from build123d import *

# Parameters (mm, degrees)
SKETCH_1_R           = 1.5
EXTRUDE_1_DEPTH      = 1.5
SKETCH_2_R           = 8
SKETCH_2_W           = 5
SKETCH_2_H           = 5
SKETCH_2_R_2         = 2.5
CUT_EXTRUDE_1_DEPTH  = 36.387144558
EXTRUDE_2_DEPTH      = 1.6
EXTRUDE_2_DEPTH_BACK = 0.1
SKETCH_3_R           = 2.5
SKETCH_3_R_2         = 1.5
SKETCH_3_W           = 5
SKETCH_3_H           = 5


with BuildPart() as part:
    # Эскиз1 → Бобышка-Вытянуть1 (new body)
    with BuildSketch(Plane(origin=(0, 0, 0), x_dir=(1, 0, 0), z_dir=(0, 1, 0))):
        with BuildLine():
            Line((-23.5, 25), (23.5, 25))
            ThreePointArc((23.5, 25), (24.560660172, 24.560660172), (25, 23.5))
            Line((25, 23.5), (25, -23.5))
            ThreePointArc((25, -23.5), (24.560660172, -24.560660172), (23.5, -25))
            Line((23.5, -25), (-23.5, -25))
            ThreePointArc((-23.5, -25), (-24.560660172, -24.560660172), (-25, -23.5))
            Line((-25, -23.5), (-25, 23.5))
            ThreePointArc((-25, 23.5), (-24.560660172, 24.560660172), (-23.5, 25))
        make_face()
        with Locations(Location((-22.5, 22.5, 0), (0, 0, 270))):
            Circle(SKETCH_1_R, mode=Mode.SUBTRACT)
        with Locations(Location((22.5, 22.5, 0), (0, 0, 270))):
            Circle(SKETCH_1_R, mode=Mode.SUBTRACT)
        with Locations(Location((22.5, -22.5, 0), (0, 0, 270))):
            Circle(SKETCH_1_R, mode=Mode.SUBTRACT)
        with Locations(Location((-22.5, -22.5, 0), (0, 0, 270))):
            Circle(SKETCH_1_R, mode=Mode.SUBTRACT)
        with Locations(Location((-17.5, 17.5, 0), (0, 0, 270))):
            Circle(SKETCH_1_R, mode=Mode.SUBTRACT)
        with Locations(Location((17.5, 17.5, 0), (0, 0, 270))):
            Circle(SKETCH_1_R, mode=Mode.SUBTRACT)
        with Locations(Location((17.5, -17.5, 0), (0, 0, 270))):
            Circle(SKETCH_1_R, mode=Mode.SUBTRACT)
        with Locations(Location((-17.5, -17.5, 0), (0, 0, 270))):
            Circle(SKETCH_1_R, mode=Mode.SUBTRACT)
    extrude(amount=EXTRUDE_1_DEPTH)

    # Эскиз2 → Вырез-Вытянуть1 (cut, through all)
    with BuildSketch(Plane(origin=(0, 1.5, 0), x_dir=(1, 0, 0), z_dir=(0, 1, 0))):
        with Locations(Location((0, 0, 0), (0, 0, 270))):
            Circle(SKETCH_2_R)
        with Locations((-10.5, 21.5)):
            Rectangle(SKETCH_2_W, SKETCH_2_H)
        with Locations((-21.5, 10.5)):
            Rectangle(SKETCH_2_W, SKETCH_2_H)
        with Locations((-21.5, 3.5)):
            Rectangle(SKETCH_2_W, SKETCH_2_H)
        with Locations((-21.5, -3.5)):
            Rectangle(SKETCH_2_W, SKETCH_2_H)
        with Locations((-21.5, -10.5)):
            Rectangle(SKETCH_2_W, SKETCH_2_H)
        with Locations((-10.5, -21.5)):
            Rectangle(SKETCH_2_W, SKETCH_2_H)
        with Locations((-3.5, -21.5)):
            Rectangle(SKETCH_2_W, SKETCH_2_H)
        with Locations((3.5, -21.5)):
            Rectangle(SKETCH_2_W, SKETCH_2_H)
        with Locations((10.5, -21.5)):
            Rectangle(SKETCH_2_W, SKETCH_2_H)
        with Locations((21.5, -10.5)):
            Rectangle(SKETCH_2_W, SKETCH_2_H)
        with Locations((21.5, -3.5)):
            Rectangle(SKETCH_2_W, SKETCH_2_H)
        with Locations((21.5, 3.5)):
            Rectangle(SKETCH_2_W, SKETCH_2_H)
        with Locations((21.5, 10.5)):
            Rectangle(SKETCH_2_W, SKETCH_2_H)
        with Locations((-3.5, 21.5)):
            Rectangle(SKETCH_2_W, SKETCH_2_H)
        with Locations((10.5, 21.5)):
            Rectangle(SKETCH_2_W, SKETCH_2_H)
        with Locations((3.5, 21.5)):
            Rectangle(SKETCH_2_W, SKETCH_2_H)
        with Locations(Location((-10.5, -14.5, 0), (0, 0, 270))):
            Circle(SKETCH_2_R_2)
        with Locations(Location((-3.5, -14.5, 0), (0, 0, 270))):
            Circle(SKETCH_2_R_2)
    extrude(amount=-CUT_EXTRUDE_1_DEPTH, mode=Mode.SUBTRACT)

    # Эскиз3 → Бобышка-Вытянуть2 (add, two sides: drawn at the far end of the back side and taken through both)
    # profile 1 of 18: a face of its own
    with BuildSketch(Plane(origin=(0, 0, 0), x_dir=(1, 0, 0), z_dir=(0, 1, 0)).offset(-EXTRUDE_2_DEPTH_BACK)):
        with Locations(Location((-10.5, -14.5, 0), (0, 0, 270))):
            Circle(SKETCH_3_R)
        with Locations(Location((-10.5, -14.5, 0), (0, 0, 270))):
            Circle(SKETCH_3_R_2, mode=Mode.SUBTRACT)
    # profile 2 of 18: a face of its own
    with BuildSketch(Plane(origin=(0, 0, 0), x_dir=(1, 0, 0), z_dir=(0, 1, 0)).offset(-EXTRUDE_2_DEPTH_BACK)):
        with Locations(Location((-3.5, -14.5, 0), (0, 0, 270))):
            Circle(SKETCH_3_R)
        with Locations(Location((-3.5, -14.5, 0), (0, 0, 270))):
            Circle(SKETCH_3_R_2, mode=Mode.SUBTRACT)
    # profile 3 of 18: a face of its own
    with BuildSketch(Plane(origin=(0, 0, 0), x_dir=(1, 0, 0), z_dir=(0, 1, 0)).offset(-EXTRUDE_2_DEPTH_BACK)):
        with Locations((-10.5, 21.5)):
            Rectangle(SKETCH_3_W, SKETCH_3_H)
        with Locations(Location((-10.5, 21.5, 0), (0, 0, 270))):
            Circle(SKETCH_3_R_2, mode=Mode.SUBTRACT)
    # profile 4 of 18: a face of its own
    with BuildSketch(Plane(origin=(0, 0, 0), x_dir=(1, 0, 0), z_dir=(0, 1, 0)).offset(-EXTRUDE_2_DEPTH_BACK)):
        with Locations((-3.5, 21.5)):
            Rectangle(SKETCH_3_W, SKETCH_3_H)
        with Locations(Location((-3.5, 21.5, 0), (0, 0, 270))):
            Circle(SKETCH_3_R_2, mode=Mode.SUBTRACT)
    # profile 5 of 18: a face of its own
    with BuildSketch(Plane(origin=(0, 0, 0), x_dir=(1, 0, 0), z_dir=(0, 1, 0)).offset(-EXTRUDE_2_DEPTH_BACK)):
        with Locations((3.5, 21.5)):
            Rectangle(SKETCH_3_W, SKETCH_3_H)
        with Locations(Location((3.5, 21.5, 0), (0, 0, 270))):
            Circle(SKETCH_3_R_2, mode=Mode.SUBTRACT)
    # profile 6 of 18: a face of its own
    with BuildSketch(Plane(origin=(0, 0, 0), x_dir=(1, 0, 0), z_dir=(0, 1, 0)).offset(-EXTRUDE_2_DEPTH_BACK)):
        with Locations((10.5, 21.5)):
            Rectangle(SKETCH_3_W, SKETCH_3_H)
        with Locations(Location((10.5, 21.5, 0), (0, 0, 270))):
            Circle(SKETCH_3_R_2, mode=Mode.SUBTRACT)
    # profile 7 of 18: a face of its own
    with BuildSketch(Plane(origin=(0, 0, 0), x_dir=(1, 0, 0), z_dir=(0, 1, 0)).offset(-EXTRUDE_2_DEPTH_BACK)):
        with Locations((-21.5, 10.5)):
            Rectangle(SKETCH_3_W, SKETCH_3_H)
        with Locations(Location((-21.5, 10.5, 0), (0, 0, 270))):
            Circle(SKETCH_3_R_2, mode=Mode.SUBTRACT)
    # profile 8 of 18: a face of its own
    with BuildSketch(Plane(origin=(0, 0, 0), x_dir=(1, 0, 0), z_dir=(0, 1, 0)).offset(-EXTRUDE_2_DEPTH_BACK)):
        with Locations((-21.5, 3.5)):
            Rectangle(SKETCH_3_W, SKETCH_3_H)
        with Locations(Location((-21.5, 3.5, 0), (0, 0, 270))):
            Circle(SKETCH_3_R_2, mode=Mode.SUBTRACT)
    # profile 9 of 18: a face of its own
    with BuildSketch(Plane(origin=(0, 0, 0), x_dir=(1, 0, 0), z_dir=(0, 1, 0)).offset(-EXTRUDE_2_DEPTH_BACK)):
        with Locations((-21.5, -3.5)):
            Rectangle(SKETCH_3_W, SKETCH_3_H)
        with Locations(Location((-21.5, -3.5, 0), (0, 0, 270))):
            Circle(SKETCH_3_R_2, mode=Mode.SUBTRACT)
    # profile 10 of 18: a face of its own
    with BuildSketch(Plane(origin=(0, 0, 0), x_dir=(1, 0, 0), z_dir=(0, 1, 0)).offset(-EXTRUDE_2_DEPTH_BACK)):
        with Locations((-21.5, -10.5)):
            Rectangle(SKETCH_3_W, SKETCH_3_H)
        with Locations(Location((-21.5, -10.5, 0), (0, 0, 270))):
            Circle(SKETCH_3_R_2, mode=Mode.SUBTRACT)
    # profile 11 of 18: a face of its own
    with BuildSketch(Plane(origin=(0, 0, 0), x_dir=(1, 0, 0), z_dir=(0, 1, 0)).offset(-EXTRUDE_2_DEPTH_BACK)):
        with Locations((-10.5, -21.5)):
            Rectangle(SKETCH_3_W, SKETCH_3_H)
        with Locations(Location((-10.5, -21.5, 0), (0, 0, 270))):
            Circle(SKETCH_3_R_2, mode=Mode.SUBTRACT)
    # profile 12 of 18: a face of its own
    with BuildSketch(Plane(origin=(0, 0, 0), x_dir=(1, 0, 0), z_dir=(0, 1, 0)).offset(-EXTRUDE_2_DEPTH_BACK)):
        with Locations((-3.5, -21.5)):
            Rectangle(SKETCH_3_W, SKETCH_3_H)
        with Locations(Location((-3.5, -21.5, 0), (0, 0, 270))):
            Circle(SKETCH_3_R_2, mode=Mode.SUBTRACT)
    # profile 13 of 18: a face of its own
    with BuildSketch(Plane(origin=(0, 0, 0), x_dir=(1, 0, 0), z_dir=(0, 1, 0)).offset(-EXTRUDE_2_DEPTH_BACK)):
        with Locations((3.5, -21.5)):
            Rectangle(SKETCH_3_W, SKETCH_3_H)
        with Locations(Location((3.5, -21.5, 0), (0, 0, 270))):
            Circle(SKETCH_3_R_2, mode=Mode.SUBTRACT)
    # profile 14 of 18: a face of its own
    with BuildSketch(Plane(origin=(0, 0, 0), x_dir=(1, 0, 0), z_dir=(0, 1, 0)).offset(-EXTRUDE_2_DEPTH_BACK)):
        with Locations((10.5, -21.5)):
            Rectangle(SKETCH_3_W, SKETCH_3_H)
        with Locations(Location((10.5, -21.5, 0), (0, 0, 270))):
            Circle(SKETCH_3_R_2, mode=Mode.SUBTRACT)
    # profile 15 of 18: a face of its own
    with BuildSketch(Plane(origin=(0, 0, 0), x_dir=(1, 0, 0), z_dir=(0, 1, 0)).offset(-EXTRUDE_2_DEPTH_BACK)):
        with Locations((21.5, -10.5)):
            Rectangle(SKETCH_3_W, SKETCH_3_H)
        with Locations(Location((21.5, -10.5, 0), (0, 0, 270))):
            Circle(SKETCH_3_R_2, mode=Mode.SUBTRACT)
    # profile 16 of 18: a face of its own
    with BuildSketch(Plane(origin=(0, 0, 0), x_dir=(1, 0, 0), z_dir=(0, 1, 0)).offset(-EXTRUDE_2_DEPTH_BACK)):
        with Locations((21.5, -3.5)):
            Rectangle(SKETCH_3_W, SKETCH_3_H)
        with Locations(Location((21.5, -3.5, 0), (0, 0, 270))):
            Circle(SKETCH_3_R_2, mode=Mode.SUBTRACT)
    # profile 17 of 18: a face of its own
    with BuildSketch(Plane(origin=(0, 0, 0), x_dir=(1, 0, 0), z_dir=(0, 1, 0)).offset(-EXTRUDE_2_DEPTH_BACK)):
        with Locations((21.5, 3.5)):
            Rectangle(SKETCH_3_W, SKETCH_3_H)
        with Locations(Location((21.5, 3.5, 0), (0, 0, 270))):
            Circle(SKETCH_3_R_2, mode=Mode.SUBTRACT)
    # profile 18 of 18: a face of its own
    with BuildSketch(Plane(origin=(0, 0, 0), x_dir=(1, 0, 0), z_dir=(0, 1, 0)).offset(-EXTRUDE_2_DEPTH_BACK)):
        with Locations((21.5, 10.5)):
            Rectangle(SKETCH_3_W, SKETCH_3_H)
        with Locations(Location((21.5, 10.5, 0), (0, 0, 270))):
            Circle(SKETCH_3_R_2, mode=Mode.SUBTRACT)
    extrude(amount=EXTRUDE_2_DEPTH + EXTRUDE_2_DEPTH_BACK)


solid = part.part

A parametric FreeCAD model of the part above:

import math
import FreeCAD as App
import Part
import Sketcher
from FreeCAD import Vector


def add_polygon(sketch, points):
    """Adds a closed chain of lines whose ends are joined by coincident constraints."""
    first, n = sketch.GeometryCount, len(points)
    for a, b in zip(points, points[1:] + points[:1]):
        sketch.addGeometry(Part.LineSegment(App.Vector(*a, 0), App.Vector(*b, 0)), False)
    for i in range(n):
        sketch.addConstraint(Sketcher.Constraint("Coincident", first + i, 2, first + (i + 1) % n, 1))

doc = App.newDocument("Part")
body = doc.addObject("PartDesign::Body", "Body")

# Sketch on XZ plane
sketch1 = doc.addObject("Sketcher::SketchObject", "Sketch")
body.addObject(sketch1)
sketch1.AttachmentSupport = (doc.XZ_Plane, [""])
sketch1.MapMode = "FlatFace"
sketch1.addGeometry([
    Part.LineSegment(Vector(23.5, -25, 0), Vector(-23.5, -25, 0)),  # 0
    Part.ArcOfCircle(Part.Circle(Vector(-23.5, -23.5, 0), Vector(0, 0, 1), 1.5), math.radians(180), math.radians(270)),  # 1
    Part.LineSegment(Vector(-25, -23.5, 0), Vector(-25, 23.5, 0)),  # 2
    Part.ArcOfCircle(Part.Circle(Vector(-23.5, 23.5, 0), Vector(0, 0, 1), 1.5), math.radians(90), math.radians(180)),  # 3
    Part.LineSegment(Vector(-23.5, 25, 0), Vector(23.5, 25, 0)),  # 4
    Part.ArcOfCircle(Part.Circle(Vector(23.5, 23.5, 0), Vector(0, 0, 1), 1.5), math.radians(0), math.radians(90)),  # 5
    Part.LineSegment(Vector(25, 23.5, 0), Vector(25, -23.5, 0)),  # 6
    Part.ArcOfCircle(Part.Circle(Vector(23.5, -23.5, 0), Vector(0, 0, 1), 1.5), math.radians(-90), math.radians(0)),  # 7
    Part.Circle(Vector(22.5, 22.5, 0), Vector(0, 0, 1), 1.5),  # 8
    Part.Circle(Vector(17.5, 17.5, 0), Vector(0, 0, 1), 1.5),  # 9
    Part.Circle(Vector(-22.5, 22.5, 0), Vector(0, 0, 1), 1.5),  # 10
    Part.Circle(Vector(-17.5, 17.5, 0), Vector(0, 0, 1), 1.5),  # 11
    Part.Circle(Vector(17.5, -17.5, 0), Vector(0, 0, 1), 1.5),  # 12
    Part.Circle(Vector(22.5, -22.5, 0), Vector(0, 0, 1), 1.5),  # 13
    Part.Circle(Vector(-17.5, -17.5, 0), Vector(0, 0, 1), 1.5),  # 14
    Part.Circle(Vector(-22.5, -22.5, 0), Vector(0, 0, 1), 1.5),  # 15
], False)
sketch1.addConstraint([
    Sketcher.Constraint("Tangent", 0, 2, 1, 2),
    Sketcher.Constraint("Tangent", 1, 1, 2, 1),
    Sketcher.Constraint("Tangent", 2, 2, 3, 2),
    Sketcher.Constraint("Tangent", 3, 1, 4, 1),
    Sketcher.Constraint("Tangent", 4, 2, 5, 2),
    Sketcher.Constraint("Tangent", 5, 1, 6, 1),
    Sketcher.Constraint("Tangent", 6, 2, 7, 2),
    Sketcher.Constraint("Tangent", 7, 1, 0, 1),
    Sketcher.Constraint("Horizontal", 0),
    Sketcher.Constraint("Vertical", 2),
    Sketcher.Constraint("Horizontal", 4),
    Sketcher.Constraint("Vertical", 6),
    Sketcher.Constraint("Equal", 1, 3),
    Sketcher.Constraint("Equal", 3, 5),
    Sketcher.Constraint("Equal", 5, 7),
    Sketcher.Constraint("Equal", 7, 8),
    Sketcher.Constraint("Equal", 8, 9),
    Sketcher.Constraint("Equal", 9, 10),
    Sketcher.Constraint("Equal", 10, 11),
    Sketcher.Constraint("Equal", 11, 12),
    Sketcher.Constraint("Equal", 12, 13),
    Sketcher.Constraint("Equal", 13, 14),
    Sketcher.Constraint("Equal", 14, 15),
    Sketcher.Constraint("Symmetric", 1, 3, 5, 3, -1, 1),
    Sketcher.Constraint("Symmetric", 11, 3, 12, 3, -1, 1),
    Sketcher.Constraint("Symmetric", 10, 3, 13, 3, -1, 1),
    Sketcher.Constraint("Symmetric", 9, 3, 14, 3, -1, 1),
    Sketcher.Constraint("Symmetric", 8, 3, 15, 3, -1, 1),
    Sketcher.Constraint("Symmetric", 8, 3, 10, 3, -2),
    Sketcher.Constraint("Symmetric", 9, 3, 11, 3, -2),
    Sketcher.Constraint("Equal", 4, 2),
    Sketcher.Constraint("Diameter", 8, 3.0),
    Sketcher.Constraint("DistanceX", 0, 2, 0, 1, 47.0),
    Sketcher.Constraint("DistanceX", 8, 3, 5, 3, 1.0),
    Sketcher.Constraint("DistanceY", 8, 3, 5, 3, 1.0),
    Sketcher.Constraint("DistanceX", 9, 3, 8, 3, 5.0),
    Sketcher.Constraint("DistanceY", 9, 3, 8, 3, 5.0),
])
pad1 = doc.addObject("PartDesign::Pad", "Pad")
body.addObject(pad1)
pad1.Profile = sketch1
pad1.Length = 1.5
pad1.Reversed = True

# Sketch on XZ plane
sketch2 = doc.addObject("Sketcher::SketchObject", "Sketch001")
body.addObject(sketch2)
sketch2.AttachmentSupport = (doc.XZ_Plane, [""])
sketch2.MapMode = "FlatFace"
sketch2.AttachmentOffset = App.Placement(Vector(0, 0, -1.5), App.Rotation())
sketch2.addGeometry(Part.Circle(Vector(0, 0, 0), Vector(0, 0, 1), 8), False)  # 0
add_polygon(sketch2, [(-13, -24), (-13, -19), (-8, -19), (-8, -24)])  # lines 1-4
add_polygon(sketch2, [(-24, -13), (-24, -8), (-19, -8), (-19, -13)])  # lines 5-8
add_polygon(sketch2, [(-24, -6), (-24, -1), (-19, -1), (-19, -6)])  # lines 9-12
add_polygon(sketch2, [(-24, 1), (-24, 6), (-19, 6), (-19, 1)])  # lines 13-16
add_polygon(sketch2, [(-24, 8), (-24, 13), (-19, 13), (-19, 8)])  # lines 17-20
add_polygon(sketch2, [(-13, 19), (-13, 24), (-8, 24), (-8, 19)])  # lines 21-24
add_polygon(sketch2, [(-6, 19), (-6, 24), (-1, 24), (-1, 19)])  # lines 25-28
add_polygon(sketch2, [(1, 19), (1, 24), (6, 24), (6, 19)])  # lines 29-32
add_polygon(sketch2, [(8, 19), (8, 24), (13, 24), (13, 19)])  # lines 33-36
add_polygon(sketch2, [(19, 8), (19, 13), (24, 13), (24, 8)])  # lines 37-40
add_polygon(sketch2, [(19, 1), (19, 6), (24, 6), (24, 1)])  # lines 41-44
add_polygon(sketch2, [(19, -6), (19, -1), (24, -1), (24, -6)])  # lines 45-48
add_polygon(sketch2, [(19, -13), (19, -8), (24, -8), (24, -13)])  # lines 49-52
add_polygon(sketch2, [(-6, -24), (-6, -19), (-1, -19), (-1, -24)])  # lines 53-56
add_polygon(sketch2, [(8, -24), (8, -19), (13, -19), (13, -24)])  # lines 57-60
add_polygon(sketch2, [(1, -24), (1, -19), (6, -19), (6, -24)])  # lines 61-64
sketch2.addGeometry(Part.Circle(Vector(-10.5, 14.5, 0), Vector(0, 0, 1), 2.5), False)  # 65
sketch2.addGeometry(Part.Circle(Vector(-3.5, 14.5, 0), Vector(0, 0, 1), 2.5), False)  # 66
sketch2.addConstraint([
    Sketcher.Constraint("Vertical", 1),
    Sketcher.Constraint("Horizontal", 2),
    Sketcher.Constraint("Vertical", 3),
    Sketcher.Constraint("Horizontal", 4),
    Sketcher.Constraint("Vertical", 5),
    Sketcher.Constraint("Horizontal", 6),
    Sketcher.Constraint("Vertical", 7),
    Sketcher.Constraint("Horizontal", 8),
    Sketcher.Constraint("Vertical", 9),
    Sketcher.Constraint("Horizontal", 10),
    Sketcher.Constraint("Vertical", 11),
    Sketcher.Constraint("Horizontal", 12),
    Sketcher.Constraint("Vertical", 13),
    Sketcher.Constraint("Horizontal", 14),
    Sketcher.Constraint("Vertical", 15),
    Sketcher.Constraint("Horizontal", 16),
    Sketcher.Constraint("Vertical", 17),
    Sketcher.Constraint("Horizontal", 18),
    Sketcher.Constraint("Vertical", 19),
    Sketcher.Constraint("Horizontal", 20),
    Sketcher.Constraint("Vertical", 21),
    Sketcher.Constraint("Horizontal", 22),
    Sketcher.Constraint("Vertical", 23),
    Sketcher.Constraint("Horizontal", 24),
    Sketcher.Constraint("Vertical", 25),
    Sketcher.Constraint("Horizontal", 26),
    Sketcher.Constraint("Vertical", 27),
    Sketcher.Constraint("Horizontal", 28),
    Sketcher.Constraint("Vertical", 29),
    Sketcher.Constraint("Horizontal", 30),
    Sketcher.Constraint("Vertical", 31),
    Sketcher.Constraint("Horizontal", 32),
    Sketcher.Constraint("Vertical", 33),
    Sketcher.Constraint("Horizontal", 34),
    Sketcher.Constraint("Vertical", 35),
    Sketcher.Constraint("Horizontal", 36),
    Sketcher.Constraint("Vertical", 37),
    Sketcher.Constraint("Horizontal", 38),
    Sketcher.Constraint("Vertical", 39),
    Sketcher.Constraint("Horizontal", 40),
    Sketcher.Constraint("Vertical", 41),
    Sketcher.Constraint("Horizontal", 42),
    Sketcher.Constraint("Vertical", 43),
    Sketcher.Constraint("Horizontal", 44),
    Sketcher.Constraint("Vertical", 45),
    Sketcher.Constraint("Horizontal", 46),
    Sketcher.Constraint("Vertical", 47),
    Sketcher.Constraint("Horizontal", 48),
    Sketcher.Constraint("Vertical", 49),
    Sketcher.Constraint("Horizontal", 50),
    Sketcher.Constraint("Vertical", 51),
    Sketcher.Constraint("Horizontal", 52),
    Sketcher.Constraint("Vertical", 53),
    Sketcher.Constraint("Horizontal", 54),
    Sketcher.Constraint("Vertical", 55),
    Sketcher.Constraint("Horizontal", 56),
    Sketcher.Constraint("Vertical", 57),
    Sketcher.Constraint("Horizontal", 58),
    Sketcher.Constraint("Vertical", 59),
    Sketcher.Constraint("Horizontal", 60),
    Sketcher.Constraint("Vertical", 61),
    Sketcher.Constraint("Horizontal", 62),
    Sketcher.Constraint("Vertical", 63),
    Sketcher.Constraint("Horizontal", 64),
    Sketcher.Constraint("Coincident", 0, 3, -1, 1),
    Sketcher.Constraint("Equal", 65, 66),
    Sketcher.Constraint("Symmetric", 3, 2, 33, 2, -1, 1),
    Sketcher.Constraint("Symmetric", 1, 2, 35, 2, -1, 1),
    Sketcher.Constraint("Symmetric", 7, 2, 37, 2, -1, 1),
    Sketcher.Constraint("Symmetric", 5, 2, 39, 2, -1, 1),
    Sketcher.Constraint("Symmetric", 11, 2, 41, 2, -1, 1),
    Sketcher.Constraint("Symmetric", 9, 2, 43, 2, -1, 1),
    Sketcher.Constraint("Symmetric", 15, 2, 45, 2, -1, 1),
    Sketcher.Constraint("Symmetric", 13, 2, 47, 2, -1, 1),
    Sketcher.Constraint("Symmetric", 19, 2, 49, 2, -1, 1),
    Sketcher.Constraint("Symmetric", 17, 2, 51, 2, -1, 1),
    Sketcher.Constraint("Symmetric", 31, 2, 53, 2, -1, 1),
    Sketcher.Constraint("Symmetric", 29, 2, 55, 2, -1, 1),
    Sketcher.Constraint("Symmetric", 23, 2, 57, 2, -1, 1),
    Sketcher.Constraint("Symmetric", 21, 2, 59, 2, -1, 1),
    Sketcher.Constraint("Symmetric", 27, 2, 61, 2, -1, 1),
    Sketcher.Constraint("Symmetric", 25, 2, 63, 2, -1, 1),
    Sketcher.Constraint("Symmetric", 26, 2, 29, 2, -2),
    Sketcher.Constraint("Symmetric", 28, 2, 31, 2, -2),
    Sketcher.Constraint("Symmetric", 22, 2, 33, 2, -2),
    Sketcher.Constraint("Symmetric", 24, 2, 35, 2, -2),
    Sketcher.Constraint("Symmetric", 18, 2, 37, 2, -2),
    Sketcher.Constraint("Symmetric", 20, 2, 39, 2, -2),
    Sketcher.Constraint("Symmetric", 14, 2, 41, 2, -2),
    Sketcher.Constraint("Symmetric", 16, 2, 43, 2, -2),
    Sketcher.Constraint("Horizontal", 65, 3, 66, 3),
    Sketcher.Constraint("Horizontal", 22, 2, 25, 2),
    Sketcher.Constraint("Horizontal", 24, 2, 27, 2),
    Sketcher.Constraint("Vertical", 8, 2, 9, 2),
    Sketcher.Constraint("Vertical", 7, 2, 10, 2),
    Sketcher.Constraint("Equal", 4, 6),
    Sketcher.Constraint("Equal", 24, 26),
    Sketcher.Constraint("Equal", 64, 1),
    Sketcher.Constraint("Equal", 3, 5),
    Sketcher.Constraint("Equal", 7, 9),
    Sketcher.Constraint("Diameter", 0, 16.0),
    Sketcher.Constraint("Diameter", 65, 5.0),
    Sketcher.Constraint("DistanceX", 2, 1, 2, 2, 5.0),
    Sketcher.Constraint("DistanceX", 1, 2, -1, 1, 13.0),
    Sketcher.Constraint("DistanceY", 1, 2, -1, 1, 19.0),
    Sketcher.Constraint("DistanceX", 5, 2, -1, 1, 24.0),
    Sketcher.Constraint("DistanceY", 5, 2, -1, 1, 8.0),
    Sketcher.Constraint("DistanceY", 9, 2, -1, 1, 1.0),
    Sketcher.Constraint("DistanceX", 25, 2, -1, 1, 6.0),
    Sketcher.Constraint("DistanceX", 65, 3, -1, 1, 10.5),
    Sketcher.Constraint("DistanceY", -1, 1, 65, 3, 14.5),
    Sketcher.Constraint("DistanceX", 66, 3, -1, 1, 3.5),
])
pocket1 = doc.addObject("PartDesign::Pocket", "Pocket")
body.addObject(pocket1)
pocket1.Profile = sketch2
pocket1.Type = "ThroughAll"
pocket1.Reversed = True

# Sketch on XZ plane
sketch3 = doc.addObject("Sketcher::SketchObject", "Sketch002")
body.addObject(sketch3)
sketch3.AttachmentSupport = (doc.XZ_Plane, [""])
sketch3.MapMode = "FlatFace"
sketch3.addGeometry(Part.Circle(Vector(-10.5, 14.5, 0), Vector(0, 0, 1), 2.5), False)  # 0
sketch3.addGeometry(Part.Circle(Vector(-10.5, 14.5, 0), Vector(0, 0, 1), 1.5), False)  # 1
sketch3.addGeometry(Part.Circle(Vector(-3.5, 14.5, 0), Vector(0, 0, 1), 2.5), False)  # 2
sketch3.addGeometry(Part.Circle(Vector(-3.5, 14.5, 0), Vector(0, 0, 1), 1.5), False)  # 3
add_polygon(sketch3, [(-13, -24), (-13, -19), (-8, -19), (-8, -24)])  # lines 4-7
sketch3.addGeometry(Part.Circle(Vector(-10.5, -21.5, 0), Vector(0, 0, 1), 1.5), False)  # 8
add_polygon(sketch3, [(-6, -24), (-6, -19), (-1, -19), (-1, -24)])  # lines 9-12
sketch3.addGeometry(Part.Circle(Vector(-3.5, -21.5, 0), Vector(0, 0, 1), 1.5), False)  # 13
add_polygon(sketch3, [(1, -24), (1, -19), (6, -19), (6, -24)])  # lines 14-17
sketch3.addGeometry(Part.Circle(Vector(3.5, -21.5, 0), Vector(0, 0, 1), 1.5), False)  # 18
add_polygon(sketch3, [(8, -24), (8, -19), (13, -19), (13, -24)])  # lines 19-22
sketch3.addGeometry(Part.Circle(Vector(10.5, -21.5, 0), Vector(0, 0, 1), 1.5), False)  # 23
add_polygon(sketch3, [(-24, -13), (-24, -8), (-19, -8), (-19, -13)])  # lines 24-27
sketch3.addGeometry(Part.Circle(Vector(-21.5, -10.5, 0), Vector(0, 0, 1), 1.5), False)  # 28
add_polygon(sketch3, [(-24, -6), (-24, -1), (-19, -1), (-19, -6)])  # lines 29-32
sketch3.addGeometry(Part.Circle(Vector(-21.5, -3.5, 0), Vector(0, 0, 1), 1.5), False)  # 33
add_polygon(sketch3, [(-24, 1), (-24, 6), (-19, 6), (-19, 1)])  # lines 34-37
sketch3.addGeometry(Part.Circle(Vector(-21.5, 3.5, 0), Vector(0, 0, 1), 1.5), False)  # 38
add_polygon(sketch3, [(-24, 8), (-24, 13), (-19, 13), (-19, 8)])  # lines 39-42
sketch3.addGeometry(Part.Circle(Vector(-21.5, 10.5, 0), Vector(0, 0, 1), 1.5), False)  # 43
add_polygon(sketch3, [(-13, 19), (-13, 24), (-8, 24), (-8, 19)])  # lines 44-47
sketch3.addGeometry(Part.Circle(Vector(-10.5, 21.5, 0), Vector(0, 0, 1), 1.5), False)  # 48
add_polygon(sketch3, [(-6, 19), (-6, 24), (-1, 24), (-1, 19)])  # lines 49-52
sketch3.addGeometry(Part.Circle(Vector(-3.5, 21.5, 0), Vector(0, 0, 1), 1.5), False)  # 53
add_polygon(sketch3, [(1, 19), (1, 24), (6, 24), (6, 19)])  # lines 54-57
sketch3.addGeometry(Part.Circle(Vector(3.5, 21.5, 0), Vector(0, 0, 1), 1.5), False)  # 58
add_polygon(sketch3, [(8, 19), (8, 24), (13, 24), (13, 19)])  # lines 59-62
sketch3.addGeometry(Part.Circle(Vector(10.5, 21.5, 0), Vector(0, 0, 1), 1.5), False)  # 63
add_polygon(sketch3, [(19, 8), (19, 13), (24, 13), (24, 8)])  # lines 64-67
sketch3.addGeometry(Part.Circle(Vector(21.5, 10.5, 0), Vector(0, 0, 1), 1.5), False)  # 68
add_polygon(sketch3, [(19, 1), (19, 6), (24, 6), (24, 1)])  # lines 69-72
sketch3.addGeometry(Part.Circle(Vector(21.5, 3.5, 0), Vector(0, 0, 1), 1.5), False)  # 73
add_polygon(sketch3, [(19, -6), (19, -1), (24, -1), (24, -6)])  # lines 74-77
sketch3.addGeometry(Part.Circle(Vector(21.5, -3.5, 0), Vector(0, 0, 1), 1.5), False)  # 78
add_polygon(sketch3, [(19, -13), (19, -8), (24, -8), (24, -13)])  # lines 79-82
sketch3.addGeometry(Part.Circle(Vector(21.5, -10.5, 0), Vector(0, 0, 1), 1.5), False)  # 83
sketch3.addConstraint([
    Sketcher.Constraint("Vertical", 4),
    Sketcher.Constraint("Horizontal", 5),
    Sketcher.Constraint("Vertical", 6),
    Sketcher.Constraint("Horizontal", 7),
    Sketcher.Constraint("Vertical", 9),
    Sketcher.Constraint("Horizontal", 10),
    Sketcher.Constraint("Vertical", 11),
    Sketcher.Constraint("Horizontal", 12),
    Sketcher.Constraint("Vertical", 14),
    Sketcher.Constraint("Horizontal", 15),
    Sketcher.Constraint("Vertical", 16),
    Sketcher.Constraint("Horizontal", 17),
    Sketcher.Constraint("Vertical", 19),
    Sketcher.Constraint("Horizontal", 20),
    Sketcher.Constraint("Vertical", 21),
    Sketcher.Constraint("Horizontal", 22),
    Sketcher.Constraint("Vertical", 24),
    Sketcher.Constraint("Horizontal", 25),
    Sketcher.Constraint("Vertical", 26),
    Sketcher.Constraint("Horizontal", 27),
    Sketcher.Constraint("Vertical", 29),
    Sketcher.Constraint("Horizontal", 30),
    Sketcher.Constraint("Vertical", 31),
    Sketcher.Constraint("Horizontal", 32),
    Sketcher.Constraint("Vertical", 34),
    Sketcher.Constraint("Horizontal", 35),
    Sketcher.Constraint("Vertical", 36),
    Sketcher.Constraint("Horizontal", 37),
    Sketcher.Constraint("Vertical", 39),
    Sketcher.Constraint("Horizontal", 40),
    Sketcher.Constraint("Vertical", 41),
    Sketcher.Constraint("Horizontal", 42),
    Sketcher.Constraint("Vertical", 44),
    Sketcher.Constraint("Horizontal", 45),
    Sketcher.Constraint("Vertical", 46),
    Sketcher.Constraint("Horizontal", 47),
    Sketcher.Constraint("Vertical", 49),
    Sketcher.Constraint("Horizontal", 50),
    Sketcher.Constraint("Vertical", 51),
    Sketcher.Constraint("Horizontal", 52),
    Sketcher.Constraint("Vertical", 54),
    Sketcher.Constraint("Horizontal", 55),
    Sketcher.Constraint("Vertical", 56),
    Sketcher.Constraint("Horizontal", 57),
    Sketcher.Constraint("Vertical", 59),
    Sketcher.Constraint("Horizontal", 60),
    Sketcher.Constraint("Vertical", 61),
    Sketcher.Constraint("Horizontal", 62),
    Sketcher.Constraint("Vertical", 64),
    Sketcher.Constraint("Horizontal", 65),
    Sketcher.Constraint("Vertical", 66),
    Sketcher.Constraint("Horizontal", 67),
    Sketcher.Constraint("Vertical", 69),
    Sketcher.Constraint("Horizontal", 70),
    Sketcher.Constraint("Vertical", 71),
    Sketcher.Constraint("Horizontal", 72),
    Sketcher.Constraint("Vertical", 74),
    Sketcher.Constraint("Horizontal", 75),
    Sketcher.Constraint("Vertical", 76),
    Sketcher.Constraint("Horizontal", 77),
    Sketcher.Constraint("Vertical", 79),
    Sketcher.Constraint("Horizontal", 80),
    Sketcher.Constraint("Vertical", 81),
    Sketcher.Constraint("Horizontal", 82),
    Sketcher.Constraint("Coincident", 1, 3, 0, 3),
    Sketcher.Constraint("Coincident", 3, 3, 2, 3),
    Sketcher.Constraint("Equal", 0, 2),
    Sketcher.Constraint("Equal", 1, 3),
    Sketcher.Constraint("Equal", 3, 8),
    Sketcher.Constraint("Equal", 8, 13),
    Sketcher.Constraint("Equal", 13, 18),
    Sketcher.Constraint("Equal", 18, 23),
    Sketcher.Constraint("Equal", 23, 28),
    Sketcher.Constraint("Equal", 28, 33),
    Sketcher.Constraint("Equal", 33, 38),
    Sketcher.Constraint("Equal", 38, 43),
    Sketcher.Constraint("Equal", 43, 48),
    Sketcher.Constraint("Equal", 48, 53),
    Sketcher.Constraint("Equal", 53, 58),
    Sketcher.Constraint("Equal", 58, 63),
    Sketcher.Constraint("Equal", 63, 68),
    Sketcher.Constraint("Equal", 68, 73),
    Sketcher.Constraint("Equal", 73, 78),
    Sketcher.Constraint("Equal", 78, 83),
    Sketcher.Constraint("Symmetric", 23, 3, 48, 3, -1, 1),
    Sketcher.Constraint("Symmetric", 18, 3, 53, 3, -1, 1),
    Sketcher.Constraint("Symmetric", 13, 3, 58, 3, -1, 1),
    Sketcher.Constraint("Symmetric", 8, 3, 63, 3, -1, 1),
    Sketcher.Constraint("Symmetric", 28, 3, 68, 3, -1, 1),
    Sketcher.Constraint("Symmetric", 33, 3, 73, 3, -1, 1),
    Sketcher.Constraint("Symmetric", 38, 3, 78, 3, -1, 1),
    Sketcher.Constraint("Symmetric", 43, 3, 83, 3, -1, 1),
    Sketcher.Constraint("Symmetric", 21, 2, 44, 2, -1, 1),
    Sketcher.Constraint("Symmetric", 19, 2, 46, 2, -1, 1),
    Sketcher.Constraint("Symmetric", 16, 2, 49, 2, -1, 1),
    Sketcher.Constraint("Symmetric", 14, 2, 51, 2, -1, 1),
    Sketcher.Constraint("Symmetric", 11, 2, 54, 2, -1, 1),
    Sketcher.Constraint("Symmetric", 9, 2, 56, 2, -1, 1),
    Sketcher.Constraint("Symmetric", 6, 2, 59, 2, -1, 1),
    Sketcher.Constraint("Symmetric", 4, 2, 61, 2, -1, 1),
    Sketcher.Constraint("Symmetric", 26, 2, 64, 2, -1, 1),
    Sketcher.Constraint("Symmetric", 24, 2, 66, 2, -1, 1),
    Sketcher.Constraint("Symmetric", 31, 2, 69, 2, -1, 1),
    Sketcher.Constraint("Symmetric", 29, 2, 71, 2, -1, 1),
    Sketcher.Constraint("Symmetric", 36, 2, 74, 2, -1, 1),
    Sketcher.Constraint("Symmetric", 34, 2, 76, 2, -1, 1),
    Sketcher.Constraint("Symmetric", 41, 2, 79, 2, -1, 1),
    Sketcher.Constraint("Symmetric", 39, 2, 81, 2, -1, 1),
    Sketcher.Constraint("Symmetric", 13, 3, 18, 3, -2),
    Sketcher.Constraint("Symmetric", 8, 3, 23, 3, -2),
    Sketcher.Constraint("Symmetric", 43, 3, 68, 3, -2),
    Sketcher.Constraint("Symmetric", 38, 3, 73, 3, -2),
    Sketcher.Constraint("Symmetric", 10, 2, 14, 2, -2),
    Sketcher.Constraint("Symmetric", 12, 2, 16, 2, -2),
    Sketcher.Constraint("Symmetric", 5, 2, 19, 2, -2),
    Sketcher.Constraint("Symmetric", 7, 2, 21, 2, -2),
    Sketcher.Constraint("Symmetric", 40, 2, 64, 2, -2),
    Sketcher.Constraint("Symmetric", 42, 2, 66, 2, -2),
    Sketcher.Constraint("Symmetric", 35, 2, 69, 2, -2),
    Sketcher.Constraint("Symmetric", 37, 2, 71, 2, -2),
    Sketcher.Constraint("Horizontal", 1, 3, 2, 3),
    Sketcher.Constraint("Horizontal", 8, 3, 13, 3),
    Sketcher.Constraint("Horizontal", 5, 2, 9, 2),
    Sketcher.Constraint("Horizontal", 7, 2, 11, 2),
    Sketcher.Constraint("Vertical", 1, 3, 8, 3),
    Sketcher.Constraint("Vertical", 3, 3, 13, 3),
    Sketcher.Constraint("Vertical", 28, 3, 33, 3),
    Sketcher.Constraint("Vertical", 27, 2, 29, 2),
    Sketcher.Constraint("Vertical", 26, 2, 30, 2),
    Sketcher.Constraint("Equal", 7, 10),
    Sketcher.Constraint("Equal", 22, 25),
    Sketcher.Constraint("Equal", 82, 4),
    Sketcher.Constraint("Equal", 21, 24),
    Sketcher.Constraint("Equal", 26, 29),
    Sketcher.Constraint("Diameter", 0, 5.0),
    Sketcher.Constraint("Diameter", 1, 3.0),
    Sketcher.Constraint("DistanceX", 5, 1, 5, 2, 5.0),
    Sketcher.Constraint("DistanceX", 4, 2, -1, 1, 13.0),
    Sketcher.Constraint("DistanceY", 4, 2, -1, 1, 19.0),
    Sketcher.Constraint("DistanceX", 9, 2, -1, 1, 6.0),
    Sketcher.Constraint("DistanceX", 24, 2, -1, 1, 24.0),
    Sketcher.Constraint("DistanceY", 24, 2, -1, 1, 8.0),
    Sketcher.Constraint("DistanceY", 29, 2, -1, 1, 1.0),
    Sketcher.Constraint("DistanceX", 0, 3, -1, 1, 10.5),
    Sketcher.Constraint("DistanceY", -1, 1, 0, 3, 14.5),
    Sketcher.Constraint("DistanceX", 2, 3, -1, 1, 3.5),
    Sketcher.Constraint("DistanceY", 8, 3, -1, 1, 21.5),
    Sketcher.Constraint("DistanceX", 28, 3, -1, 1, 21.5),
    Sketcher.Constraint("DistanceY", 28, 3, -1, 1, 10.5),
    Sketcher.Constraint("DistanceY", 33, 3, -1, 1, 3.5),
])
pad2 = doc.addObject("PartDesign::Pad", "Pad001")
body.addObject(pad2)
pad2.Profile = sketch3
pad2.Type = "TwoLengths"
pad2.Length = 1.6
pad2.Length2 = 0.1
pad2.Reversed = True

doc.recompute()
